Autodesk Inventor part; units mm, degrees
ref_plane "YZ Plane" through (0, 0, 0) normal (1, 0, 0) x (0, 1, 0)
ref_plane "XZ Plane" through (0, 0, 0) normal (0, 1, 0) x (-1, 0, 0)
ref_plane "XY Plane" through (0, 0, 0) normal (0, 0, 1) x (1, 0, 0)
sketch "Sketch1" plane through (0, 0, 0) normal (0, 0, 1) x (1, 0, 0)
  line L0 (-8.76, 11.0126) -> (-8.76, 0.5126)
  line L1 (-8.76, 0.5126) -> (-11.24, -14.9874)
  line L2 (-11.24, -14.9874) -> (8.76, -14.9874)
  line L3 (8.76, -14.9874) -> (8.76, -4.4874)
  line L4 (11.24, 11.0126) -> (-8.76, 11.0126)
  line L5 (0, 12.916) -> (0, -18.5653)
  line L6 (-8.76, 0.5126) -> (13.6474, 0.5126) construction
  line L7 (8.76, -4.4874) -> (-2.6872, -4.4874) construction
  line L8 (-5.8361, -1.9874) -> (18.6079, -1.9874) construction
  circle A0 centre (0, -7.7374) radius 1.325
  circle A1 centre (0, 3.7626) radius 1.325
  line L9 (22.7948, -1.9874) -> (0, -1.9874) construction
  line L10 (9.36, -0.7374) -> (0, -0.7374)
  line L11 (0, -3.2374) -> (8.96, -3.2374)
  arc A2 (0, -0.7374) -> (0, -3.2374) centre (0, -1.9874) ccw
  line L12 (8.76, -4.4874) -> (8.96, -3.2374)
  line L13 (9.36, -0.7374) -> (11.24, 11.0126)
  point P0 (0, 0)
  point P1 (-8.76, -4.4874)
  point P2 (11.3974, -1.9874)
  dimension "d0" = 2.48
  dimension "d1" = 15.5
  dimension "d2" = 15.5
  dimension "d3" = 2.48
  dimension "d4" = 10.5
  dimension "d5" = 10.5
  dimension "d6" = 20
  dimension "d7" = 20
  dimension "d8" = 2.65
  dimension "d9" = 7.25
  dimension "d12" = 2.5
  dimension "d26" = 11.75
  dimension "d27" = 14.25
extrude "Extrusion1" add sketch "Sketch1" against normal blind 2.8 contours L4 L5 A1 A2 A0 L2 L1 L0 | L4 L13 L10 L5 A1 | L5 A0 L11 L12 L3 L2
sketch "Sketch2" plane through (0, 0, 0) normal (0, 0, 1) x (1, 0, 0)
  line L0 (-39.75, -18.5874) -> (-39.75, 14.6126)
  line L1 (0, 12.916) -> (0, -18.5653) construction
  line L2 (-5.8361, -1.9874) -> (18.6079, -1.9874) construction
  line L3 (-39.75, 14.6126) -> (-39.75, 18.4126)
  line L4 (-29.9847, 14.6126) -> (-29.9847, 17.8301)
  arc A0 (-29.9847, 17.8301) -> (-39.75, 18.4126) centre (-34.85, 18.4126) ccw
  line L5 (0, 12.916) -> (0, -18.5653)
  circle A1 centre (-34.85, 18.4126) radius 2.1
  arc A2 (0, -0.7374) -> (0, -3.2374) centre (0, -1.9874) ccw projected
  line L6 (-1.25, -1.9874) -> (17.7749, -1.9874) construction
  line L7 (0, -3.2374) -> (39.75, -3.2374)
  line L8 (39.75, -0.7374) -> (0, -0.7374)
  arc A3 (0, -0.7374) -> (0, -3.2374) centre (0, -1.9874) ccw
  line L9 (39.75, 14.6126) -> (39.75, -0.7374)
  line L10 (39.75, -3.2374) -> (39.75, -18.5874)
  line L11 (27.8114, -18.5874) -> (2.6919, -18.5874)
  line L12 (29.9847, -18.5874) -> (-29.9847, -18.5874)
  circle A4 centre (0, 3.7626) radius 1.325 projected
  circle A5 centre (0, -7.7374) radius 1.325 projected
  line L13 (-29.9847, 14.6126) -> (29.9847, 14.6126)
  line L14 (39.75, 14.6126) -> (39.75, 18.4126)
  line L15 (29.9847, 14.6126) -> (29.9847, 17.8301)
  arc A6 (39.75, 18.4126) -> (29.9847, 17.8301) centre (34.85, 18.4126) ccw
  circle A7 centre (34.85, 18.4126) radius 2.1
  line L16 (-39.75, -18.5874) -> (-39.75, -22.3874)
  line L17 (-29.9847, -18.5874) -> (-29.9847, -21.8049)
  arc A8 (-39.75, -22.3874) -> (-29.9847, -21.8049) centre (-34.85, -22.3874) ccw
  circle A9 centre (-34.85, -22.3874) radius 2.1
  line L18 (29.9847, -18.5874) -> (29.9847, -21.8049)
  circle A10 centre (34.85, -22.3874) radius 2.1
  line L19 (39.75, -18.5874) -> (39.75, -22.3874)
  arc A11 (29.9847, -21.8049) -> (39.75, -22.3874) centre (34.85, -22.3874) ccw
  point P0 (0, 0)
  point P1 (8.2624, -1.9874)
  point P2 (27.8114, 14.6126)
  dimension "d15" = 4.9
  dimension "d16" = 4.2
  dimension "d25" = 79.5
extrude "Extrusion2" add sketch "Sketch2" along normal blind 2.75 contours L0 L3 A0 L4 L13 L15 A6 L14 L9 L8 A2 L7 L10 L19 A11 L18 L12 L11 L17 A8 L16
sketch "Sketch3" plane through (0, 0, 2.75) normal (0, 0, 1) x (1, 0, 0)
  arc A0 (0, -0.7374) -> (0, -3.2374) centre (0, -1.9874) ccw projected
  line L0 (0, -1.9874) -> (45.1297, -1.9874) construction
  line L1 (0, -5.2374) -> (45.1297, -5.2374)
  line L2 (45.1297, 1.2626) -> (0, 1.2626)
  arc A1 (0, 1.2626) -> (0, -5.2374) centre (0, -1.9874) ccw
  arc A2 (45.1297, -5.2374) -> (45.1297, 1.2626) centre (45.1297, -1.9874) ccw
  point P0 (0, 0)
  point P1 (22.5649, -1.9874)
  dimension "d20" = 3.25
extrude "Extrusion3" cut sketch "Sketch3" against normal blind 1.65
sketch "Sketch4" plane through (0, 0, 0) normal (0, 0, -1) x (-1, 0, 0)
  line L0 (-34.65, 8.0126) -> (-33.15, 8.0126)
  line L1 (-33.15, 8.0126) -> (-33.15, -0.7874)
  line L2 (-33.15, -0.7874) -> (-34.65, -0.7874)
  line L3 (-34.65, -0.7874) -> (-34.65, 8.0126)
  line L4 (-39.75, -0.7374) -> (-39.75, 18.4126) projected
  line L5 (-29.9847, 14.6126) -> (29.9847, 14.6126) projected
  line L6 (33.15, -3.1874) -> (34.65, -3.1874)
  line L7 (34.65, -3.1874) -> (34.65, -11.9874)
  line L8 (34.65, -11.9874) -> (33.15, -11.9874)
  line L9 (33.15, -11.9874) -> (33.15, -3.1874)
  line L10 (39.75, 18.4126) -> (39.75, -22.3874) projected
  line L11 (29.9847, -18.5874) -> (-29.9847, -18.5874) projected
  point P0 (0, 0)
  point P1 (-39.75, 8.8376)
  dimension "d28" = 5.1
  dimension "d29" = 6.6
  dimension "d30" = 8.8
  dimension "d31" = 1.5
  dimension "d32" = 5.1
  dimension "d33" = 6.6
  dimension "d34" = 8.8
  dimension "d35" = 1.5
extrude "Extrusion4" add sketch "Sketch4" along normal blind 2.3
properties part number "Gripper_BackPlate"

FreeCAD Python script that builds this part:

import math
import FreeCAD as App
import Part
import Sketcher

doc = App.newDocument("Part")
body = doc.addObject("PartDesign::Body", "Body")

# Sketch on XY plane
sketch1 = body.newObject("Sketcher::SketchObject", "Sketch")
sketch1.AttachmentSupport = (doc.getObject("XY_Plane"), [""])
sketch1.MapMode = "FlatFace"
sketch1.addGeometry([
    Part.LineSegment(App.Vector(-8.8, 11, 0), App.Vector(-8.8, 0.5, 0)),  # 0
    Part.LineSegment(App.Vector(-8.8, 0.5, 0), App.Vector(-11.2, -15, 0)),  # 1
    Part.LineSegment(App.Vector(-11.2, -15, 0), App.Vector(8.8, -15, 0)),  # 2
    Part.LineSegment(App.Vector(8.8, -15, 0), App.Vector(8.8, -4.5, 0)),  # 3
    Part.LineSegment(App.Vector(8.8, -4.5, 0), App.Vector(9, -3.2, 0)),  # 4
    Part.LineSegment(App.Vector(9, -3.2, 0), App.Vector(0, -3.2, 0)),  # 5
    Part.ArcOfCircle(Part.Circle(App.Vector(0, -2, 0), App.Vector(0, 0, 1), 1.2), math.radians(90), math.radians(270)),  # 6
    Part.LineSegment(App.Vector(0, -0.7, 0), App.Vector(9.4, -0.7, 0)),  # 7
    Part.LineSegment(App.Vector(9.4, -0.7, 0), App.Vector(11.2, 11, 0)),  # 8
    Part.LineSegment(App.Vector(11.2, 11, 0), App.Vector(-8.8, 11, 0)),  # 9
    Part.Circle(App.Vector(0, 3.8, 0), App.Vector(0, 0, 1), 1.3),  # 10
    Part.Circle(App.Vector(0, -7.7, 0), App.Vector(0, 0, 1), 1.3),  # 11
], False)
sketch1.addConstraint([
    Sketcher.Constraint("Coincident", 0, 2, 1, 1),
    Sketcher.Constraint("Coincident", 1, 2, 2, 1),
    Sketcher.Constraint("Coincident", 2, 2, 3, 1),
    Sketcher.Constraint("Coincident", 3, 2, 4, 1),
    Sketcher.Constraint("Coincident", 4, 2, 5, 1),
    Sketcher.Constraint("Tangent", 5, 2, 6, 2),
    Sketcher.Constraint("Tangent", 6, 1, 7, 1),
    Sketcher.Constraint("Coincident", 7, 2, 8, 1),
    Sketcher.Constraint("Coincident", 8, 2, 9, 1),
    Sketcher.Constraint("Coincident", 9, 2, 0, 1),
    Sketcher.Constraint("Vertical", 0),
    Sketcher.Constraint("Horizontal", 2),
    Sketcher.Constraint("Vertical", 3),
    Sketcher.Constraint("Horizontal", 5),
    Sketcher.Constraint("Horizontal", 7),
    Sketcher.Constraint("Horizontal", 9),
    Sketcher.Constraint("Equal", 10, 11),
    Sketcher.Constraint("PointOnObject", 6, 3, -2),
    Sketcher.Constraint("PointOnObject", 10, 3, -2),
    Sketcher.Constraint("PointOnObject", 11, 3, -2),
    Sketcher.Constraint("Parallel", 1, 4),
    Sketcher.Constraint("Parallel", 4, 8),
    Sketcher.Constraint("Equal", 2, 9),
    Sketcher.Constraint("Equal", 0, 3),
    Sketcher.Constraint("Diameter", 10, 2.65),
    Sketcher.Constraint("DistanceX", 2, 1, 2, 2, 20.0),
    Sketcher.Constraint("Radius", 6, 1.25),
    Sketcher.Constraint("DistanceY", 0, 2, 0, 1, 10.5),
    Sketcher.Constraint("DistanceY", 6, 3, 0, 2, 2.5),
    Sketcher.Constraint("DistanceY", 1, 2, 0, 2, 15.5),
    Sketcher.Constraint("DistanceY", 1, 2, 11, 3, 7.25),
    Sketcher.Constraint("DistanceX", 1, 2, 0, 2, 2.48),
    Sketcher.Constraint("DistanceY", 10, 3, 8, 2, 7.25),
    Sketcher.Constraint("DistanceX", 5, 2, 5, 1, 8.96),
    Sketcher.Constraint("DistanceY", 6, 3, -1, 1, 1.9874),
])
pad1 = body.newObject("PartDesign::Pad", "Pad")
pad1.Profile = sketch1
pad1.Length = 2.8
pad1.Reversed = True

# Sketch on XY plane
sketch2 = body.newObject("Sketcher::SketchObject", "Sketch001")
sketch2.AttachmentSupport = (doc.getObject("XY_Plane"), [""])
sketch2.MapMode = "FlatFace"
sketch2.addGeometry([
    Part.LineSegment(App.Vector(-39.8, 18.4, 0), App.Vector(-39.8, -22.4, 0)),  # 0
    Part.ArcOfCircle(Part.Circle(App.Vector(-34.9, -22.4, 0), App.Vector(0, 0, 1), 4.9), math.radians(180), math.radians(367)),  # 1
    Part.LineSegment(App.Vector(-30, -21.8, 0), App.Vector(-30, -18.6, 0)),  # 2
    Part.LineSegment(App.Vector(-30, -18.6, 0), App.Vector(30, -18.6, 0)),  # 3
    Part.LineSegment(App.Vector(30, -18.6, 0), App.Vector(30, -21.8, 0)),  # 4
    Part.ArcOfCircle(Part.Circle(App.Vector(34.9, -22.4, 0), App.Vector(0, 0, 1), 4.9), math.radians(173), math.radians(360)),  # 5
    Part.LineSegment(App.Vector(39.8, -22.4, 0), App.Vector(39.8, -3.2, 0)),  # 6
    Part.LineSegment(App.Vector(39.8, -3.2, 0), App.Vector(0, -3.2, 0)),  # 7
    Part.ArcOfCircle(Part.Circle(App.Vector(0, -2, 0), App.Vector(0, 0, 1), 1.2), math.radians(90), math.radians(270)),  # 8
    Part.LineSegment(App.Vector(0, -0.7, 0), App.Vector(39.8, -0.7, 0)),  # 9
    Part.LineSegment(App.Vector(39.8, -0.7, 0), App.Vector(39.8, 18.4, 0)),  # 10
    Part.ArcOfCircle(Part.Circle(App.Vector(34.9, 18.4, 0), App.Vector(0, 0, 1), 4.9), math.radians(0), math.radians(187)),  # 11
    Part.LineSegment(App.Vector(30, 17.8, 0), App.Vector(30, 14.6, 0)),  # 12
    Part.LineSegment(App.Vector(30, 14.6, 0), App.Vector(-30, 14.6, 0)),  # 13
    Part.LineSegment(App.Vector(-30, 14.6, 0), App.Vector(-30, 17.8, 0)),  # 14
    Part.ArcOfCircle(Part.Circle(App.Vector(-34.9, 18.4, 0), App.Vector(0, 0, 1), 4.9), math.radians(-7), math.radians(180)),  # 15
    Part.Circle(App.Vector(-34.9, -22.4, 0), App.Vector(0, 0, 1), 2.1),  # 16
    Part.Circle(App.Vector(34.9, -22.4, 0), App.Vector(0, 0, 1), 2.1),  # 17
    Part.Circle(App.Vector(0, -7.7, 0), App.Vector(0, 0, 1), 1.3),  # 18
    Part.Circle(App.Vector(-34.9, 18.4, 0), App.Vector(0, 0, 1), 2.1),  # 19
    Part.Circle(App.Vector(0, 3.8, 0), App.Vector(0, 0, 1), 1.3),  # 20
    Part.Circle(App.Vector(34.9, 18.4, 0), App.Vector(0, 0, 1), 2.1),  # 21
], False)
sketch2.addConstraint([
    Sketcher.Constraint("Tangent", 0, 2, 1, 1),
    Sketcher.Constraint("Coincident", 1, 2, 2, 1),
    Sketcher.Constraint("Coincident", 2, 2, 3, 1),
    Sketcher.Constraint("Coincident", 3, 2, 4, 1),
    Sketcher.Constraint("Coincident", 4, 2, 5, 1),
    Sketcher.Constraint("Tangent", 5, 2, 6, 1),
    Sketcher.Constraint("Coincident", 6, 2, 7, 1),
    Sketcher.Constraint("Tangent", 7, 2, 8, 2),
    Sketcher.Constraint("Tangent", 8, 1, 9, 1),
    Sketcher.Constraint("Coincident", 9, 2, 10, 1),
    Sketcher.Constraint("Tangent", 10, 2, 11, 1),
    Sketcher.Constraint("Coincident", 11, 2, 12, 1),
    Sketcher.Constraint("Coincident", 12, 2, 13, 1),
    Sketcher.Constraint("Coincident", 13, 2, 14, 1),
    Sketcher.Constraint("Coincident", 14, 2, 15, 1),
    Sketcher.Constraint("Tangent", 15, 2, 0, 1),
    Sketcher.Constraint("Vertical", 0),
    Sketcher.Constraint("Vertical", 2),
    Sketcher.Constraint("Horizontal", 3),
    Sketcher.Constraint("Vertical", 4),
    Sketcher.Constraint("Vertical", 6),
    Sketcher.Constraint("Horizontal", 7),
    Sketcher.Constraint("Horizontal", 9),
    Sketcher.Constraint("Vertical", 10),
    Sketcher.Constraint("Vertical", 12),
    Sketcher.Constraint("Horizontal", 13),
    Sketcher.Constraint("Vertical", 14),
    Sketcher.Constraint("Coincident", 16, 3, 1, 3),
    Sketcher.Constraint("Coincident", 17, 3, 5, 3),
    Sketcher.Constraint("Coincident", 19, 3, 15, 3),
    Sketcher.Constraint("Coincident", 21, 3, 11, 3),
    Sketcher.Constraint("Equal", 1, 5),
    Sketcher.Constraint("Equal", 5, 11),
    Sketcher.Constraint("Equal", 11, 15),
    Sketcher.Constraint("Equal", 16, 17),
    Sketcher.Constraint("Equal", 17, 19),
    Sketcher.Constraint("Equal", 18, 20),
    Sketcher.Constraint("Equal", 19, 21),
    Sketcher.Constraint("Symmetric", 1, 3, 5, 3, -2),
    Sketcher.Constraint("Symmetric", 11, 3, 15, 3, -2),
    Sketcher.Constraint("PointOnObject", 8, 3, -2),
    Sketcher.Constraint("PointOnObject", 18, 3, -2),
    Sketcher.Constraint("PointOnObject", 20, 3, -2),
    Sketcher.Constraint("Horizontal", 1, 2, 4, 2),
    Sketcher.Constraint("Horizontal", 11, 2, 14, 2),
    Sketcher.Constraint("Vertical", 4, 2, 11, 2),
    Sketcher.Constraint("Equal", 6, 10),
    Sketcher.Constraint("Equal", 4, 12),
    Sketcher.Constraint("Diameter", 16, 4.2),
    Sketcher.Constraint("Radius", 1, 4.9),
    Sketcher.Constraint("Diameter", 18, 2.65),
    Sketcher.Constraint("Radius", 8, 1.25),
    Sketcher.Constraint("DistanceY", 0, 2, 0, 1, 40.8),
    Sketcher.Constraint("DistanceY", 3, 2, 11, 3, 37.0),
    Sketcher.Constraint("DistanceY", 7, 2, 20, 3, 7.0),
    Sketcher.Constraint("DistanceY", 18, 3, 8, 1, 7.0),
    Sketcher.Constraint("DistanceX", 7, 2, 7, 1, 39.75),
    Sketcher.Constraint("DistanceY", -1, 1, 11, 2, 17.83),
    Sketcher.Constraint("DistanceX", 3, 1, 3, 2, 59.9694),
])
pad2 = body.newObject("PartDesign::Pad", "Pad001")
pad2.Profile = sketch2
pad2.Length = 2.75

# Sketch on XY plane
sketch3 = body.newObject("Sketcher::SketchObject", "Sketch002")
sketch3.AttachmentSupport = (doc.getObject("XY_Plane"), [""])
sketch3.MapMode = "FlatFace"
sketch3.AttachmentOffset = App.Placement(App.Vector(0, 0, 2.75), App.Rotation())
sketch3.addGeometry([
    Part.ArcOfCircle(Part.Circle(App.Vector(0, -2, 0), App.Vector(0, 0, 1), 3.2), math.radians(90), math.radians(270)),
    Part.LineSegment(App.Vector(0, -5.2, 0), App.Vector(45.1, -5.2, 0)),
    Part.ArcOfCircle(Part.Circle(App.Vector(45.1, -2, 0), App.Vector(0, 0, 1), 3.2), math.radians(-90), math.radians(90)),
    Part.LineSegment(App.Vector(45.1, 1.3, 0), App.Vector(0, 1.3, 0)),
], False)
sketch3.addConstraint([
    Sketcher.Constraint("Tangent", 0, 2, 1, 1),
    Sketcher.Constraint("Tangent", 1, 2, 2, 1),
    Sketcher.Constraint("Tangent", 2, 2, 3, 1),
    Sketcher.Constraint("Tangent", 3, 2, 0, 1),
    Sketcher.Constraint("Horizontal", 1),
    Sketcher.Constraint("Horizontal", 3),
    Sketcher.Constraint("PointOnObject", 0, 3, -2),
    Sketcher.Constraint("Radius", 0, 3.25),
    Sketcher.Constraint("DistanceX", 1, 1, 1, 2, 45.1297),
    Sketcher.Constraint("DistanceY", 0, 3, -1, 1, 1.9874),
])
pocket1 = body.newObject("PartDesign::Pocket", "Pocket")
pocket1.Profile = sketch3
pocket1.Length = 1.65

# Sketch on XY plane
sketch4 = body.newObject("Sketcher::SketchObject", "Sketch003")
sketch4.AttachmentSupport = (doc.getObject("XY_Plane"), [""])
sketch4.MapMode = "FlatFace"
sketch4.addGeometry([
    Part.LineSegment(App.Vector(33.1, 8, 0), App.Vector(34.6, 8, 0)),  # 0
    Part.LineSegment(App.Vector(34.6, 8, 0), App.Vector(34.6, -0.8, 0)),  # 1
    Part.LineSegment(App.Vector(34.6, -0.8, 0), App.Vector(33.1, -0.8, 0)),  # 2
    Part.LineSegment(App.Vector(33.1, -0.8, 0), App.Vector(33.1, 8, 0)),  # 3
    Part.LineSegment(App.Vector(-34.6, -3.2, 0), App.Vector(-33.1, -3.2, 0)),  # 4
    Part.LineSegment(App.Vector(-33.1, -3.2, 0), App.Vector(-33.1, -12, 0)),  # 5
    Part.LineSegment(App.Vector(-33.1, -12, 0), App.Vector(-34.6, -12, 0)),  # 6
    Part.LineSegment(App.Vector(-34.6, -12, 0), App.Vector(-34.6, -3.2, 0)),  # 7
], False)
sketch4.addConstraint([
    Sketcher.Constraint("Coincident", 0, 2, 1, 1),
    Sketcher.Constraint("Coincident", 1, 2, 2, 1),
    Sketcher.Constraint("Coincident", 2, 2, 3, 1),
    Sketcher.Constraint("Coincident", 3, 2, 0, 1),
    Sketcher.Constraint("Coincident", 4, 2, 5, 1),
    Sketcher.Constraint("Coincident", 5, 2, 6, 1),
    Sketcher.Constraint("Coincident", 6, 2, 7, 1),
    Sketcher.Constraint("Coincident", 7, 2, 4, 1),
    Sketcher.Constraint("Horizontal", 0),
    Sketcher.Constraint("Vertical", 1),
    Sketcher.Constraint("Horizontal", 2),
    Sketcher.Constraint("Vertical", 3),
    Sketcher.Constraint("Horizontal", 4),
    Sketcher.Constraint("Vertical", 5),
    Sketcher.Constraint("Horizontal", 6),
    Sketcher.Constraint("Vertical", 7),
    Sketcher.Constraint("Equal", 2, 4),
    Sketcher.Constraint("Equal", 3, 5),
    Sketcher.Constraint("DistanceX", 0, 1, 0, 2, 1.5),
    Sketcher.Constraint("DistanceY", 1, 2, 1, 1, 8.8),
    Sketcher.Constraint("DistanceY", 5, 2, 3, 2, 20.0),
    Sketcher.Constraint("DistanceX", 4, 2, 2, 2, 66.3),
    Sketcher.Constraint("DistanceX", -1, 1, 0, 2, 34.65),
    Sketcher.Constraint("DistanceY", -1, 1, 0, 2, 8.0126),
])
pad3 = body.newObject("PartDesign::Pad", "Pad002")
pad3.Profile = sketch4
pad3.Length = 2.3
pad3.Reversed = True

doc.recompute()
